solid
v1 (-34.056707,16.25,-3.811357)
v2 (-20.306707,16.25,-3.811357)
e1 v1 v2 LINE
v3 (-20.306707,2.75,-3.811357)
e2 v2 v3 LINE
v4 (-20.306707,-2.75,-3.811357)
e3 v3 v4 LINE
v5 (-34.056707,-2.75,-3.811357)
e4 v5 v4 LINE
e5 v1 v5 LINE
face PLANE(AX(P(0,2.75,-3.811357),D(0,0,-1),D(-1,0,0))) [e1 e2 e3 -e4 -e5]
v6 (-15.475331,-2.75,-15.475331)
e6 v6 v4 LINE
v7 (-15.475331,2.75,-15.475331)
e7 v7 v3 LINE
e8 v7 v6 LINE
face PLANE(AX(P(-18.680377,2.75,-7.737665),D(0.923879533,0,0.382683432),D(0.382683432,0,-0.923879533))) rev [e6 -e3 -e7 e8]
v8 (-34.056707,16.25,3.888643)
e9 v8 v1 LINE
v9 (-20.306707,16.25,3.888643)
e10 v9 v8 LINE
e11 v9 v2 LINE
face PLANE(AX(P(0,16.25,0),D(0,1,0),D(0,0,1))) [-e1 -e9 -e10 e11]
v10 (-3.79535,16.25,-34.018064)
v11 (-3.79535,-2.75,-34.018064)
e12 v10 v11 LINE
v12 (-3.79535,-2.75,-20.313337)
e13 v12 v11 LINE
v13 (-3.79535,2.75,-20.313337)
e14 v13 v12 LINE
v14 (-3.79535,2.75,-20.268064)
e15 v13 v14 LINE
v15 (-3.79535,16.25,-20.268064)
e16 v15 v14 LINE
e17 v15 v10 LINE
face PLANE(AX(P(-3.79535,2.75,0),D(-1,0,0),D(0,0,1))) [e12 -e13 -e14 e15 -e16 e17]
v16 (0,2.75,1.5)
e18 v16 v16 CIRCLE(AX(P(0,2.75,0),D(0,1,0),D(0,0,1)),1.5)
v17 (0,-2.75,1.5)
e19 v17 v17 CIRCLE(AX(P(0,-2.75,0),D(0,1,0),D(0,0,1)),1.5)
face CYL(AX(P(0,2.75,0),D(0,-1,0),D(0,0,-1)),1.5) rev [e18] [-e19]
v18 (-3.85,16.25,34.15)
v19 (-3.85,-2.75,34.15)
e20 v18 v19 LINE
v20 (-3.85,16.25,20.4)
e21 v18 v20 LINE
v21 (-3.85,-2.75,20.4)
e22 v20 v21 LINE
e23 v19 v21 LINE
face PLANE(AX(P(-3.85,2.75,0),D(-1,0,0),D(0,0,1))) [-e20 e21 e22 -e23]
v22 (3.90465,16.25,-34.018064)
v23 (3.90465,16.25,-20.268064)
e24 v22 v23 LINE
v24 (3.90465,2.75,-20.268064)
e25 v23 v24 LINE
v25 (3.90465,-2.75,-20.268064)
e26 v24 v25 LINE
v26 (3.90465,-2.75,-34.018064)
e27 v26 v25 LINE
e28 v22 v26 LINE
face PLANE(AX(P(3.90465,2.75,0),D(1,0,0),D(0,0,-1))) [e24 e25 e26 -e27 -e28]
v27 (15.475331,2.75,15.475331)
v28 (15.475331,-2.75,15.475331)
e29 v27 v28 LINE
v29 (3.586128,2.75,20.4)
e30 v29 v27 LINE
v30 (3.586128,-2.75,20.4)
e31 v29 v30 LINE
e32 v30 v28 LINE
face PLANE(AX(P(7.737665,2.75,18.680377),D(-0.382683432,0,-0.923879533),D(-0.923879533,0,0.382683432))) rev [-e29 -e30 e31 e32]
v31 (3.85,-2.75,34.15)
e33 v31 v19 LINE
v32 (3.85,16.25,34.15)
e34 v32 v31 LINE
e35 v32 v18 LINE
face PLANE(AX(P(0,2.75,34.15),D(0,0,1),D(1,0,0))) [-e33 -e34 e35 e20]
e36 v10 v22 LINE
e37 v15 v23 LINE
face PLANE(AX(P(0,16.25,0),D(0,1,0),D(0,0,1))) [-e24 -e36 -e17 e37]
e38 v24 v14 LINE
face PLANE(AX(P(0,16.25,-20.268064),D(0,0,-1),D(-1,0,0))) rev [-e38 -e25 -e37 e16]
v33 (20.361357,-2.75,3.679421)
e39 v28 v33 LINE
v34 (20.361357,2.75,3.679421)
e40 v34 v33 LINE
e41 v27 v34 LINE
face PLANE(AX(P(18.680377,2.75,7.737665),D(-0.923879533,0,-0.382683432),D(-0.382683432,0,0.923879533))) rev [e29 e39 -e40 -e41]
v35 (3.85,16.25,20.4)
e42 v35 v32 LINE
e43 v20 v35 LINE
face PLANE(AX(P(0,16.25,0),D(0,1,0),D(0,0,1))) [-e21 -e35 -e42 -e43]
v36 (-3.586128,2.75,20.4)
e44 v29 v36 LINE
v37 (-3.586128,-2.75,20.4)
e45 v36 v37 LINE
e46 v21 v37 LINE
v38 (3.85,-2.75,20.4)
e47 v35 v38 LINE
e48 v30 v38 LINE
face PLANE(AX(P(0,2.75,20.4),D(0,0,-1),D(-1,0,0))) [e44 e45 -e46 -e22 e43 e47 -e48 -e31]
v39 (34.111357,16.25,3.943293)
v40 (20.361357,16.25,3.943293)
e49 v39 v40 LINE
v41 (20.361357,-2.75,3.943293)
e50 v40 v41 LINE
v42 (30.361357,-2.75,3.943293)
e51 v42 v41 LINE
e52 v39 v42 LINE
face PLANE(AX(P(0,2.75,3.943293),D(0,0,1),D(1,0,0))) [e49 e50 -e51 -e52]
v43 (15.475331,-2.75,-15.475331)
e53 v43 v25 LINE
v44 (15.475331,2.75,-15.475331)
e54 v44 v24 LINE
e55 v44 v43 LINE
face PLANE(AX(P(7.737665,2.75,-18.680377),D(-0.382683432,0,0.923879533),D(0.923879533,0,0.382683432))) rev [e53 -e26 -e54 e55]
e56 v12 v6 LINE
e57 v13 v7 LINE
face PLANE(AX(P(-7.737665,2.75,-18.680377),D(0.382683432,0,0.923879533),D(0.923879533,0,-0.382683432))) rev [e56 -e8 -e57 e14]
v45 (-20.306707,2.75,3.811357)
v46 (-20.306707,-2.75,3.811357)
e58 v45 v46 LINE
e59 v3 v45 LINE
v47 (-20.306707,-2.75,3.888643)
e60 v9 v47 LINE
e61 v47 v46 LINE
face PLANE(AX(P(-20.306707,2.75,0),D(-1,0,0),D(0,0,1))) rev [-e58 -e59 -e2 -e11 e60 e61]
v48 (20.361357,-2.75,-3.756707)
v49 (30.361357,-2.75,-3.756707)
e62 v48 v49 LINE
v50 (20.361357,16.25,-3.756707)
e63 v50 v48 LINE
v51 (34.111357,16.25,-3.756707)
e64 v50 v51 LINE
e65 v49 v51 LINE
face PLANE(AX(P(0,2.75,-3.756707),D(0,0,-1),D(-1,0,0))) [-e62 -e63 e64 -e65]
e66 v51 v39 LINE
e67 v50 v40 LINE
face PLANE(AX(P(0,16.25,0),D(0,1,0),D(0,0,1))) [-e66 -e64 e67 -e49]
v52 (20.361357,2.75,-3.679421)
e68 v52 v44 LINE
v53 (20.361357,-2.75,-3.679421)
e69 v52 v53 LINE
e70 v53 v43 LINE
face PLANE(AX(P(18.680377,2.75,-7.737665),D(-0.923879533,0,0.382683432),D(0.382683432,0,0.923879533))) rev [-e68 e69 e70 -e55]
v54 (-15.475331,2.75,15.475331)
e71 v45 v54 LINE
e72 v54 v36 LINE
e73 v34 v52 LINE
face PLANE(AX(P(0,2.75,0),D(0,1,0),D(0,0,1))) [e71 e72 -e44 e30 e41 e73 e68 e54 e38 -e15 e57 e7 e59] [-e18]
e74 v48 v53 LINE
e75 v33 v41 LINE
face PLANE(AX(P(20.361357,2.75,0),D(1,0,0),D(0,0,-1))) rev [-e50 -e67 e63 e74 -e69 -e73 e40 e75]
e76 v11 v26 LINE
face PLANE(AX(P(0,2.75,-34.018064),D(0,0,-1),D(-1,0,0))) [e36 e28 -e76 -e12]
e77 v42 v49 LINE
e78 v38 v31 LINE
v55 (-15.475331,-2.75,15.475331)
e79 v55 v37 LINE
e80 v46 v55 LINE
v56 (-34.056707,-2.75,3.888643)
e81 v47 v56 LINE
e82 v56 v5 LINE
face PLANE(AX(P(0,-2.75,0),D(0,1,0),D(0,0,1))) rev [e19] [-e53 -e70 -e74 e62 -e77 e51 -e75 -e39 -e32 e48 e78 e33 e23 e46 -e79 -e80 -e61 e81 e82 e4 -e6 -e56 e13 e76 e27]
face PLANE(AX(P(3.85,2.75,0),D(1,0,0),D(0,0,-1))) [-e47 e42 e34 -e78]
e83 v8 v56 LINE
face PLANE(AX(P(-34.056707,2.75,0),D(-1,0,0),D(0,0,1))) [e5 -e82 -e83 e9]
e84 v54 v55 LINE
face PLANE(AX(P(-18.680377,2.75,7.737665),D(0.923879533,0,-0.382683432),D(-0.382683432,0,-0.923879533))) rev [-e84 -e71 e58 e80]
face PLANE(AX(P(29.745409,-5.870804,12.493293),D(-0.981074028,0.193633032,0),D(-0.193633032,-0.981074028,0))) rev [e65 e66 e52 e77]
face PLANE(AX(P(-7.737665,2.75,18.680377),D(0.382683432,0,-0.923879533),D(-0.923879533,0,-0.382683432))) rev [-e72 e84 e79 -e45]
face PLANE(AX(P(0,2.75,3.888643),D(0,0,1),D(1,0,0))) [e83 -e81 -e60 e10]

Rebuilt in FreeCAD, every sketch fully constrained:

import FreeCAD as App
import Part
import Sketcher
Q = App.Units.Quantity

doc = App.newDocument("Part")
params = doc.addObject("Spreadsheet::Sheet", "Params")
for row, (alias, value) in enumerate([
    ("sketch1_diameter", "3 mm"),
    ("sketch1_width", "7.7 mm"),
    ("sketch1_width2", "13.75 mm"),
    ("pad1_length", "5.5 mm"),
    ("sketch2_width", "7.7 mm"),
    ("sketch2_width2", "13.75 mm"),
    ("pad2_length", "16.25 mm"),
    ("sketch3_height", "19 mm"),
    ("sketch3_width", "3.75 mm"),
    ("pocket1_length", "16.25 mm"),
], start=1):
    params.set(f"A{row}", alias)
    params.set(f"B{row}", "=" + value)
    params.setAlias(f"B{row}", alias)

body = doc.addObject("PartDesign::Body", "Body")

sketch1 = doc.addObject("Sketcher::SketchObject", "Sketch")
body.addObject(sketch1)
sketch1.AttachmentSupport = (doc.XZ_Plane, [""])
sketch1.MapMode = "FlatFace"
sketch1.addGeometry(Part.LineSegment(App.Vector(-15.48, 15.48, 0), App.Vector(-4.04, 20.21, 0)), False)
sketch1.addGeometry(Part.LineSegment(App.Vector(-4.04, 20.21, 0), App.Vector(-3.59, 20.4, 0)), False)
sketch1.addGeometry(Part.LineSegment(App.Vector(-3.59, 20.4, 0), App.Vector(-3.85, 20.4, 0)), False)
sketch1.addGeometry(Part.LineSegment(App.Vector(-3.85, 20.4, 0), App.Vector(-3.85, 34.15, 0)), False)
sketch1.addGeometry(Part.LineSegment(App.Vector(-3.85, 34.15, 0), App.Vector(3.85, 34.15, 0)), False)
sketch1.addGeometry(Part.LineSegment(App.Vector(3.85, 34.15, 0), App.Vector(3.85, 20.4, 0)), False)
sketch1.addGeometry(Part.LineSegment(App.Vector(3.85, 20.4, 0), App.Vector(3.59, 20.4, 0)), False)
sketch1.addGeometry(Part.LineSegment(App.Vector(3.59, 20.4, 0), App.Vector(4.04, 20.21, 0)), False)
sketch1.addGeometry(Part.LineSegment(App.Vector(4.04, 20.21, 0), App.Vector(15.48, 15.48, 0)), False)
sketch1.addGeometry(Part.LineSegment(App.Vector(15.48, 15.48, 0), App.Vector(20.18, 4.13, 0)), False)
sketch1.addGeometry(Part.LineSegment(App.Vector(20.18, 4.13, 0), App.Vector(20.36, 3.68, 0)), False)
sketch1.addGeometry(Part.LineSegment(App.Vector(20.36, 3.68, 0), App.Vector(20.36, 3.94, 0)), False)
sketch1.addGeometry(Part.LineSegment(App.Vector(20.36, 3.94, 0), App.Vector(34.11, 3.94, 0)), False)
sketch1.addGeometry(Part.LineSegment(App.Vector(34.11, 3.94, 0), App.Vector(34.11, -3.76, 0)), False)
sketch1.addGeometry(Part.LineSegment(App.Vector(34.11, -3.76, 0), App.Vector(20.36, -3.76, 0)), False)
sketch1.addGeometry(Part.LineSegment(App.Vector(20.36, -3.76, 0), App.Vector(20.36, -3.68, 0)), False)
sketch1.addGeometry(Part.LineSegment(App.Vector(20.36, -3.68, 0), App.Vector(20.31, -3.81, 0)), False)
sketch1.addGeometry(Part.LineSegment(App.Vector(20.31, -3.81, 0), App.Vector(15.48, -15.48, 0)), False)
sketch1.addGeometry(Part.LineSegment(App.Vector(15.48, -15.48, 0), App.Vector(3.9, -20.27, 0)), False)
sketch1.addGeometry(Part.LineSegment(App.Vector(3.9, -20.27, 0), App.Vector(3.9, -34.02, 0)), False)
sketch1.addGeometry(Part.LineSegment(App.Vector(3.9, -34.02, 0), App.Vector(-3.8, -34.02, 0)), False)
sketch1.addGeometry(Part.LineSegment(App.Vector(-3.8, -34.02, 0), App.Vector(-3.8, -20.31, 0)), False)
sketch1.addGeometry(Part.LineSegment(App.Vector(-3.8, -20.31, 0), App.Vector(-15.48, -15.48, 0)), False)
sketch1.addGeometry(Part.LineSegment(App.Vector(-15.48, -15.48, 0), App.Vector(-20.31, -3.81, 0)), False)
sketch1.addGeometry(Part.LineSegment(App.Vector(-20.31, -3.81, 0), App.Vector(-34.06, -3.81, 0)), False)
sketch1.addGeometry(Part.LineSegment(App.Vector(-34.06, -3.81, 0), App.Vector(-34.06, 3.89, 0)), False)
sketch1.addGeometry(Part.LineSegment(App.Vector(-34.06, 3.89, 0), App.Vector(-20.31, 3.89, 0)), False)
sketch1.addGeometry(Part.LineSegment(App.Vector(-20.31, 3.89, 0), App.Vector(-20.31, 3.81, 0)), False)
sketch1.addGeometry(Part.LineSegment(App.Vector(-20.31, 3.81, 0), App.Vector(-20.25, 3.94, 0)), False)
sketch1.addGeometry(Part.LineSegment(App.Vector(-20.25, 3.94, 0), App.Vector(-15.48, 15.48, 0)), False)
sketch1.addGeometry(Part.Circle(App.Vector(0, 0, 0), App.Vector(0, 0, 1), 1.5), False)
sketch1.addConstraint(Sketcher.Constraint("Coincident", 0, 2, 1, 1))
sketch1.addConstraint(Sketcher.Constraint("Coincident", 1, 2, 2, 1))
sketch1.addConstraint(Sketcher.Constraint("Coincident", 2, 2, 3, 1))
sketch1.addConstraint(Sketcher.Constraint("Coincident", 3, 2, 4, 1))
sketch1.addConstraint(Sketcher.Constraint("Coincident", 4, 2, 5, 1))
sketch1.addConstraint(Sketcher.Constraint("Coincident", 5, 2, 6, 1))
sketch1.addConstraint(Sketcher.Constraint("Coincident", 6, 2, 7, 1))
sketch1.addConstraint(Sketcher.Constraint("Coincident", 7, 2, 8, 1))
sketch1.addConstraint(Sketcher.Constraint("Coincident", 8, 2, 9, 1))
sketch1.addConstraint(Sketcher.Constraint("Coincident", 9, 2, 10, 1))
sketch1.addConstraint(Sketcher.Constraint("Coincident", 10, 2, 11, 1))
sketch1.addConstraint(Sketcher.Constraint("Coincident", 11, 2, 12, 1))
sketch1.addConstraint(Sketcher.Constraint("Coincident", 12, 2, 13, 1))
sketch1.addConstraint(Sketcher.Constraint("Coincident", 13, 2, 14, 1))
sketch1.addConstraint(Sketcher.Constraint("Coincident", 14, 2, 15, 1))
sketch1.addConstraint(Sketcher.Constraint("Coincident", 15, 2, 16, 1))
sketch1.addConstraint(Sketcher.Constraint("Coincident", 16, 2, 17, 1))
sketch1.addConstraint(Sketcher.Constraint("Coincident", 17, 2, 18, 1))
sketch1.addConstraint(Sketcher.Constraint("Coincident", 18, 2, 19, 1))
sketch1.addConstraint(Sketcher.Constraint("Coincident", 19, 2, 20, 1))
sketch1.addConstraint(Sketcher.Constraint("Coincident", 20, 2, 21, 1))
sketch1.addConstraint(Sketcher.Constraint("Coincident", 21, 2, 22, 1))
sketch1.addConstraint(Sketcher.Constraint("Coincident", 22, 2, 23, 1))
sketch1.addConstraint(Sketcher.Constraint("Coincident", 23, 2, 24, 1))
sketch1.addConstraint(Sketcher.Constraint("Coincident", 24, 2, 25, 1))
sketch1.addConstraint(Sketcher.Constraint("Coincident", 25, 2, 26, 1))
sketch1.addConstraint(Sketcher.Constraint("Coincident", 26, 2, 27, 1))
sketch1.addConstraint(Sketcher.Constraint("Coincident", 27, 2, 28, 1))
sketch1.addConstraint(Sketcher.Constraint("Coincident", 28, 2, 29, 1))
sketch1.addConstraint(Sketcher.Constraint("Coincident", 29, 2, 0, 1))
sketch1.addConstraint(Sketcher.Constraint("Horizontal", 2))
sketch1.addConstraint(Sketcher.Constraint("Vertical", 3))
sketch1.addConstraint(Sketcher.Constraint("Horizontal", 4))
sketch1.addConstraint(Sketcher.Constraint("Vertical", 5))
sketch1.addConstraint(Sketcher.Constraint("Horizontal", 6))
sketch1.addConstraint(Sketcher.Constraint("Vertical", 11))
sketch1.addConstraint(Sketcher.Constraint("Horizontal", 12))
sketch1.addConstraint(Sketcher.Constraint("Vertical", 13))
sketch1.addConstraint(Sketcher.Constraint("Horizontal", 14))
sketch1.addConstraint(Sketcher.Constraint("Vertical", 15))
sketch1.addConstraint(Sketcher.Constraint("Vertical", 19))
sketch1.addConstraint(Sketcher.Constraint("Horizontal", 20))
sketch1.addConstraint(Sketcher.Constraint("Vertical", 21))
sketch1.addConstraint(Sketcher.Constraint("Horizontal", 24))
sketch1.addConstraint(Sketcher.Constraint("Vertical", 25))
sketch1.addConstraint(Sketcher.Constraint("Horizontal", 26))
sketch1.addConstraint(Sketcher.Constraint("Vertical", 27))
sketch1.addConstraint(Sketcher.Constraint("Coincident", 30, 3, -1, 1))
sketch1.addConstraint(Sketcher.Constraint("Symmetric", 8, 2, 22, 2, -1, 1))
sketch1.addConstraint(Sketcher.Constraint("Symmetric", 17, 2, 29, 2, -1, 1))
sketch1.addConstraint(Sketcher.Constraint("Symmetric", 2, 2, 5, 2, -2))
sketch1.addConstraint(Sketcher.Constraint("Symmetric", 17, 2, 22, 2, -2))
sketch1.addConstraint(Sketcher.Constraint("Symmetric", 10, 2, 15, 2, -1))
sketch1.addConstraint(Sketcher.Constraint("Symmetric", 23, 2, 27, 2, -1))
sketch1.addConstraint(Sketcher.Constraint("Parallel", 0, 1))
sketch1.addConstraint(Sketcher.Constraint("Parallel", 7, 8))
sketch1.addConstraint(Sketcher.Constraint("Perpendicular", 1, 9))
sketch1.addConstraint(Sketcher.Constraint("Parallel", 9, 10))
sketch1.addConstraint(Sketcher.Constraint("Perpendicular", 8, 16))
sketch1.addConstraint(Sketcher.Constraint("Parallel", 16, 17))
sketch1.addConstraint(Sketcher.Constraint("Perpendicular", 10, 18))
sketch1.addConstraint(Sketcher.Constraint("Perpendicular", 17, 22))
sketch1.addConstraint(Sketcher.Constraint("Perpendicular", 18, 23))
sketch1.addConstraint(Sketcher.Constraint("Perpendicular", 22, 28))
sketch1.addConstraint(Sketcher.Constraint("Equal", 4, 20))
sketch1.addConstraint(Sketcher.Constraint("Equal", 14, 24))
sketch1.addConstraint(Sketcher.Constraint("Equal", 26, 3))
sketch1.addConstraint(Sketcher.Constraint("Equal", 6, 11))
sketch1.addConstraint(Sketcher.Constraint("Equal", 20, 13))
sketch1.addConstraint(Sketcher.Constraint("Equal", 5, 19))
sketch1.addConstraint(Sketcher.Constraint("Equal", 13, 25))
sketch1.addConstraint(Sketcher.Constraint("Equal", 15, 27))
sketch1.addConstraint(Sketcher.Constraint("Equal", 1, 10))
sketch1.addConstraint(Sketcher.Constraint("Equal", 16, 28))
sketch1.addConstraint(Sketcher.Constraint("Diameter", 30, 3.0))
sketch1.addConstraint(Sketcher.Constraint("DistanceX", 4, 1, 4, 2, 7.7))
sketch1.addConstraint(Sketcher.Constraint("Angle", 0, Q("22.5 deg")))
sketch1.addConstraint(Sketcher.Constraint("DistanceX", 12, 1, 12, 2, 13.75))
sketch1.addConstraint(Sketcher.Constraint("DistanceY", -1, 1, 1, 2, 20.4))
sketch1.addConstraint(Sketcher.Constraint("Distance", 7, 0.48872))
sketch1.addConstraint(Sketcher.Constraint("Distance", 8, 12.380061))
sketch1.addConstraint(Sketcher.Constraint("Distance", 17, 12.624658))
sketch1.addConstraint(Sketcher.Constraint("Distance", 22, 12.64232))
sketch1.addConstraint(Sketcher.Constraint("Distance", 29, 12.481852))
sketch1.addConstraint(Sketcher.Constraint("DistanceY", 15, 1, 15, 2, 0.077286))
sketch1.addConstraint(Sketcher.Constraint("DistanceY", -1, 1, 0, 2, 20.21385))
sketch1.setExpression("Constraints[74]", "Params.sketch1_diameter")
sketch1.setExpression("Constraints[75]", "Params.sketch1_width")
sketch1.setExpression("Constraints[77]", "Params.sketch1_width2")
pad1 = doc.addObject("PartDesign::Pad", "Pad")
body.addObject(pad1)
pad1.Profile = sketch1
pad1.setExpression("Length", "Params.pad1_length")
pad1.Midplane = True

sketch2 = doc.addObject("Sketcher::SketchObject", "Sketch001")
body.addObject(sketch2)
sketch2.AttachmentSupport = (doc.XZ_Plane, [""])
sketch2.MapMode = "FlatFace"
sketch2.addGeometry(Part.LineSegment(App.Vector(-4, 20, 0), App.Vector(-4, 34, 0)), False)
sketch2.addGeometry(Part.LineSegment(App.Vector(-4, 34, 0), App.Vector(4, 34, 0)), False)
sketch2.addGeometry(Part.LineSegment(App.Vector(4, 34, 0), App.Vector(4, 20, 0)), False)
sketch2.addGeometry(Part.LineSegment(App.Vector(4, 20, 0), App.Vector(-4, 20, 0)), False)
sketch2.addGeometry(Part.LineSegment(App.Vector(-20, 4, 0), App.Vector(-20, -4, 0)), False)
sketch2.addGeometry(Part.LineSegment(App.Vector(-20, -4, 0), App.Vector(-34, -4, 0)), False)
sketch2.addGeometry(Part.LineSegment(App.Vector(-34, -4, 0), App.Vector(-34, 4, 0)), False)
sketch2.addGeometry(Part.LineSegment(App.Vector(-34, 4, 0), App.Vector(-20, 4, 0)), False)
sketch2.addGeometry(Part.LineSegment(App.Vector(-4, -20, 0), App.Vector(4, -20, 0)), False)
sketch2.addGeometry(Part.LineSegment(App.Vector(4, -20, 0), App.Vector(4, -34, 0)), False)
sketch2.addGeometry(Part.LineSegment(App.Vector(4, -34, 0), App.Vector(-4, -34, 0)), False)
sketch2.addGeometry(Part.LineSegment(App.Vector(-4, -34, 0), App.Vector(-4, -20, 0)), False)
sketch2.addGeometry(Part.LineSegment(App.Vector(20, 4, 0), App.Vector(34, 4, 0)), False)
sketch2.addGeometry(Part.LineSegment(App.Vector(34, 4, 0), App.Vector(34, -4, 0)), False)
sketch2.addGeometry(Part.LineSegment(App.Vector(34, -4, 0), App.Vector(20, -4, 0)), False)
sketch2.addGeometry(Part.LineSegment(App.Vector(20, -4, 0), App.Vector(20, 4, 0)), False)
sketch2.addConstraint(Sketcher.Constraint("Coincident", 0, 2, 1, 1))
sketch2.addConstraint(Sketcher.Constraint("Coincident", 1, 2, 2, 1))
sketch2.addConstraint(Sketcher.Constraint("Coincident", 2, 2, 3, 1))
sketch2.addConstraint(Sketcher.Constraint("Coincident", 3, 2, 0, 1))
sketch2.addConstraint(Sketcher.Constraint("Coincident", 4, 2, 5, 1))
sketch2.addConstraint(Sketcher.Constraint("Coincident", 5, 2, 6, 1))
sketch2.addConstraint(Sketcher.Constraint("Coincident", 6, 2, 7, 1))
sketch2.addConstraint(Sketcher.Constraint("Coincident", 7, 2, 4, 1))
sketch2.addConstraint(Sketcher.Constraint("Coincident", 8, 2, 9, 1))
sketch2.addConstraint(Sketcher.Constraint("Coincident", 9, 2, 10, 1))
sketch2.addConstraint(Sketcher.Constraint("Coincident", 10, 2, 11, 1))
sketch2.addConstraint(Sketcher.Constraint("Coincident", 11, 2, 8, 1))
sketch2.addConstraint(Sketcher.Constraint("Coincident", 12, 2, 13, 1))
sketch2.addConstraint(Sketcher.Constraint("Coincident", 13, 2, 14, 1))
sketch2.addConstraint(Sketcher.Constraint("Coincident", 14, 2, 15, 1))
sketch2.addConstraint(Sketcher.Constraint("Coincident", 15, 2, 12, 1))
sketch2.addConstraint(Sketcher.Constraint("Vertical", 0))
sketch2.addConstraint(Sketcher.Constraint("Horizontal", 1))
sketch2.addConstraint(Sketcher.Constraint("Vertical", 2))
sketch2.addConstraint(Sketcher.Constraint("Horizontal", 3))
sketch2.addConstraint(Sketcher.Constraint("Vertical", 4))
sketch2.addConstraint(Sketcher.Constraint("Horizontal", 5))
sketch2.addConstraint(Sketcher.Constraint("Vertical", 6))
sketch2.addConstraint(Sketcher.Constraint("Horizontal", 7))
sketch2.addConstraint(Sketcher.Constraint("Horizontal", 8))
sketch2.addConstraint(Sketcher.Constraint("Vertical", 9))
sketch2.addConstraint(Sketcher.Constraint("Horizontal", 10))
sketch2.addConstraint(Sketcher.Constraint("Vertical", 11))
sketch2.addConstraint(Sketcher.Constraint("Horizontal", 12))
sketch2.addConstraint(Sketcher.Constraint("Vertical", 13))
sketch2.addConstraint(Sketcher.Constraint("Horizontal", 14))
sketch2.addConstraint(Sketcher.Constraint("Vertical", 15))
sketch2.addConstraint(Sketcher.Constraint("Equal", 3, 8))
sketch2.addConstraint(Sketcher.Constraint("Equal", 7, 12))
sketch2.addConstraint(Sketcher.Constraint("Equal", 14, 0))
sketch2.addConstraint(Sketcher.Constraint("Equal", 10, 4))
sketch2.addConstraint(Sketcher.Constraint("Equal", 2, 9))
sketch2.addConstraint(Sketcher.Constraint("Equal", 6, 13))
sketch2.addConstraint(Sketcher.Constraint("DistanceX", 1, 1, 1, 2, 7.7))
sketch2.addConstraint(Sketcher.Constraint("DistanceX", 5, 2, 5, 1, 13.75))
sketch2.addConstraint(Sketcher.Constraint("DistanceY", -1, 1, 2, 2, 20.4))
sketch2.addConstraint(Sketcher.Constraint("DistanceX", 0, 2, -1, 1, 3.85))
sketch2.addConstraint(Sketcher.Constraint("DistanceX", -1, 1, 8, 2, 3.90465))
sketch2.addConstraint(Sketcher.Constraint("DistanceX", 4, 2, -1, 1, 20.306707))
sketch2.addConstraint(Sketcher.Constraint("DistanceY", 4, 2, -1, 1, 3.811357))
sketch2.addConstraint(Sketcher.Constraint("DistanceY", 8, 2, -1, 1, 20.268064))
sketch2.addConstraint(Sketcher.Constraint("DistanceX", -1, 1, 12, 2, 34.111357))
sketch2.addConstraint(Sketcher.Constraint("DistanceY", -1, 1, 12, 2, 3.943293))
sketch2.setExpression("Constraints[38]", "Params.sketch2_width")
sketch2.setExpression("Constraints[39]", "Params.sketch2_width2")
pad2 = doc.addObject("PartDesign::Pad", "Pad001")
body.addObject(pad2)
pad2.Profile = sketch2
pad2.setExpression("Length", "Params.pad2_length")
pad2.Reversed = True

sketch3 = doc.addObject("Sketcher::SketchObject", "Sketch002")
body.addObject(sketch3)
sketch3.AttachmentSupport = (doc.XY_Plane, [""])
sketch3.MapMode = "FlatFace"
sketch3.AttachmentOffset = App.Placement(App.Vector(0, 0, -3.756707), App.Rotation())
sketch3.addGeometry(Part.LineSegment(App.Vector(30.4, -2.8, 0), App.Vector(34.1, 16.2, 0)), False)
sketch3.addGeometry(Part.LineSegment(App.Vector(34.1, 16.2, 0), App.Vector(34.1, -2.8, 0)), False)
sketch3.addGeometry(Part.LineSegment(App.Vector(34.1, -2.8, 0), App.Vector(30.4, -2.8, 0)), False)
sketch3.addConstraint(Sketcher.Constraint("Coincident", 0, 2, 1, 1))
sketch3.addConstraint(Sketcher.Constraint("Coincident", 1, 2, 2, 1))
sketch3.addConstraint(Sketcher.Constraint("Coincident", 2, 2, 0, 1))
sketch3.addConstraint(Sketcher.Constraint("Vertical", 1))
sketch3.addConstraint(Sketcher.Constraint("Horizontal", 2))
sketch3.addConstraint(Sketcher.Constraint("DistanceY", 1, 2, 1, 1, 19.0))
sketch3.addConstraint(Sketcher.Constraint("DistanceX", 2, 2, 2, 1, 3.75))
sketch3.addConstraint(Sketcher.Constraint("DistanceY", -1, 1, 0, 2, 16.25))
sketch3.addConstraint(Sketcher.Constraint("DistanceX", -1, 1, 0, 2, 34.111357))
sketch3.setExpression("Constraints[5]", "Params.sketch3_height")
sketch3.setExpression("Constraints[6]", "Params.sketch3_width")
pocket1 = doc.addObject("PartDesign::Pocket", "Pocket")
body.addObject(pocket1)
pocket1.Profile = sketch3
pocket1.setExpression("Length", "Params.pocket1_length")
pocket1.Reversed = True

doc.recompute()
